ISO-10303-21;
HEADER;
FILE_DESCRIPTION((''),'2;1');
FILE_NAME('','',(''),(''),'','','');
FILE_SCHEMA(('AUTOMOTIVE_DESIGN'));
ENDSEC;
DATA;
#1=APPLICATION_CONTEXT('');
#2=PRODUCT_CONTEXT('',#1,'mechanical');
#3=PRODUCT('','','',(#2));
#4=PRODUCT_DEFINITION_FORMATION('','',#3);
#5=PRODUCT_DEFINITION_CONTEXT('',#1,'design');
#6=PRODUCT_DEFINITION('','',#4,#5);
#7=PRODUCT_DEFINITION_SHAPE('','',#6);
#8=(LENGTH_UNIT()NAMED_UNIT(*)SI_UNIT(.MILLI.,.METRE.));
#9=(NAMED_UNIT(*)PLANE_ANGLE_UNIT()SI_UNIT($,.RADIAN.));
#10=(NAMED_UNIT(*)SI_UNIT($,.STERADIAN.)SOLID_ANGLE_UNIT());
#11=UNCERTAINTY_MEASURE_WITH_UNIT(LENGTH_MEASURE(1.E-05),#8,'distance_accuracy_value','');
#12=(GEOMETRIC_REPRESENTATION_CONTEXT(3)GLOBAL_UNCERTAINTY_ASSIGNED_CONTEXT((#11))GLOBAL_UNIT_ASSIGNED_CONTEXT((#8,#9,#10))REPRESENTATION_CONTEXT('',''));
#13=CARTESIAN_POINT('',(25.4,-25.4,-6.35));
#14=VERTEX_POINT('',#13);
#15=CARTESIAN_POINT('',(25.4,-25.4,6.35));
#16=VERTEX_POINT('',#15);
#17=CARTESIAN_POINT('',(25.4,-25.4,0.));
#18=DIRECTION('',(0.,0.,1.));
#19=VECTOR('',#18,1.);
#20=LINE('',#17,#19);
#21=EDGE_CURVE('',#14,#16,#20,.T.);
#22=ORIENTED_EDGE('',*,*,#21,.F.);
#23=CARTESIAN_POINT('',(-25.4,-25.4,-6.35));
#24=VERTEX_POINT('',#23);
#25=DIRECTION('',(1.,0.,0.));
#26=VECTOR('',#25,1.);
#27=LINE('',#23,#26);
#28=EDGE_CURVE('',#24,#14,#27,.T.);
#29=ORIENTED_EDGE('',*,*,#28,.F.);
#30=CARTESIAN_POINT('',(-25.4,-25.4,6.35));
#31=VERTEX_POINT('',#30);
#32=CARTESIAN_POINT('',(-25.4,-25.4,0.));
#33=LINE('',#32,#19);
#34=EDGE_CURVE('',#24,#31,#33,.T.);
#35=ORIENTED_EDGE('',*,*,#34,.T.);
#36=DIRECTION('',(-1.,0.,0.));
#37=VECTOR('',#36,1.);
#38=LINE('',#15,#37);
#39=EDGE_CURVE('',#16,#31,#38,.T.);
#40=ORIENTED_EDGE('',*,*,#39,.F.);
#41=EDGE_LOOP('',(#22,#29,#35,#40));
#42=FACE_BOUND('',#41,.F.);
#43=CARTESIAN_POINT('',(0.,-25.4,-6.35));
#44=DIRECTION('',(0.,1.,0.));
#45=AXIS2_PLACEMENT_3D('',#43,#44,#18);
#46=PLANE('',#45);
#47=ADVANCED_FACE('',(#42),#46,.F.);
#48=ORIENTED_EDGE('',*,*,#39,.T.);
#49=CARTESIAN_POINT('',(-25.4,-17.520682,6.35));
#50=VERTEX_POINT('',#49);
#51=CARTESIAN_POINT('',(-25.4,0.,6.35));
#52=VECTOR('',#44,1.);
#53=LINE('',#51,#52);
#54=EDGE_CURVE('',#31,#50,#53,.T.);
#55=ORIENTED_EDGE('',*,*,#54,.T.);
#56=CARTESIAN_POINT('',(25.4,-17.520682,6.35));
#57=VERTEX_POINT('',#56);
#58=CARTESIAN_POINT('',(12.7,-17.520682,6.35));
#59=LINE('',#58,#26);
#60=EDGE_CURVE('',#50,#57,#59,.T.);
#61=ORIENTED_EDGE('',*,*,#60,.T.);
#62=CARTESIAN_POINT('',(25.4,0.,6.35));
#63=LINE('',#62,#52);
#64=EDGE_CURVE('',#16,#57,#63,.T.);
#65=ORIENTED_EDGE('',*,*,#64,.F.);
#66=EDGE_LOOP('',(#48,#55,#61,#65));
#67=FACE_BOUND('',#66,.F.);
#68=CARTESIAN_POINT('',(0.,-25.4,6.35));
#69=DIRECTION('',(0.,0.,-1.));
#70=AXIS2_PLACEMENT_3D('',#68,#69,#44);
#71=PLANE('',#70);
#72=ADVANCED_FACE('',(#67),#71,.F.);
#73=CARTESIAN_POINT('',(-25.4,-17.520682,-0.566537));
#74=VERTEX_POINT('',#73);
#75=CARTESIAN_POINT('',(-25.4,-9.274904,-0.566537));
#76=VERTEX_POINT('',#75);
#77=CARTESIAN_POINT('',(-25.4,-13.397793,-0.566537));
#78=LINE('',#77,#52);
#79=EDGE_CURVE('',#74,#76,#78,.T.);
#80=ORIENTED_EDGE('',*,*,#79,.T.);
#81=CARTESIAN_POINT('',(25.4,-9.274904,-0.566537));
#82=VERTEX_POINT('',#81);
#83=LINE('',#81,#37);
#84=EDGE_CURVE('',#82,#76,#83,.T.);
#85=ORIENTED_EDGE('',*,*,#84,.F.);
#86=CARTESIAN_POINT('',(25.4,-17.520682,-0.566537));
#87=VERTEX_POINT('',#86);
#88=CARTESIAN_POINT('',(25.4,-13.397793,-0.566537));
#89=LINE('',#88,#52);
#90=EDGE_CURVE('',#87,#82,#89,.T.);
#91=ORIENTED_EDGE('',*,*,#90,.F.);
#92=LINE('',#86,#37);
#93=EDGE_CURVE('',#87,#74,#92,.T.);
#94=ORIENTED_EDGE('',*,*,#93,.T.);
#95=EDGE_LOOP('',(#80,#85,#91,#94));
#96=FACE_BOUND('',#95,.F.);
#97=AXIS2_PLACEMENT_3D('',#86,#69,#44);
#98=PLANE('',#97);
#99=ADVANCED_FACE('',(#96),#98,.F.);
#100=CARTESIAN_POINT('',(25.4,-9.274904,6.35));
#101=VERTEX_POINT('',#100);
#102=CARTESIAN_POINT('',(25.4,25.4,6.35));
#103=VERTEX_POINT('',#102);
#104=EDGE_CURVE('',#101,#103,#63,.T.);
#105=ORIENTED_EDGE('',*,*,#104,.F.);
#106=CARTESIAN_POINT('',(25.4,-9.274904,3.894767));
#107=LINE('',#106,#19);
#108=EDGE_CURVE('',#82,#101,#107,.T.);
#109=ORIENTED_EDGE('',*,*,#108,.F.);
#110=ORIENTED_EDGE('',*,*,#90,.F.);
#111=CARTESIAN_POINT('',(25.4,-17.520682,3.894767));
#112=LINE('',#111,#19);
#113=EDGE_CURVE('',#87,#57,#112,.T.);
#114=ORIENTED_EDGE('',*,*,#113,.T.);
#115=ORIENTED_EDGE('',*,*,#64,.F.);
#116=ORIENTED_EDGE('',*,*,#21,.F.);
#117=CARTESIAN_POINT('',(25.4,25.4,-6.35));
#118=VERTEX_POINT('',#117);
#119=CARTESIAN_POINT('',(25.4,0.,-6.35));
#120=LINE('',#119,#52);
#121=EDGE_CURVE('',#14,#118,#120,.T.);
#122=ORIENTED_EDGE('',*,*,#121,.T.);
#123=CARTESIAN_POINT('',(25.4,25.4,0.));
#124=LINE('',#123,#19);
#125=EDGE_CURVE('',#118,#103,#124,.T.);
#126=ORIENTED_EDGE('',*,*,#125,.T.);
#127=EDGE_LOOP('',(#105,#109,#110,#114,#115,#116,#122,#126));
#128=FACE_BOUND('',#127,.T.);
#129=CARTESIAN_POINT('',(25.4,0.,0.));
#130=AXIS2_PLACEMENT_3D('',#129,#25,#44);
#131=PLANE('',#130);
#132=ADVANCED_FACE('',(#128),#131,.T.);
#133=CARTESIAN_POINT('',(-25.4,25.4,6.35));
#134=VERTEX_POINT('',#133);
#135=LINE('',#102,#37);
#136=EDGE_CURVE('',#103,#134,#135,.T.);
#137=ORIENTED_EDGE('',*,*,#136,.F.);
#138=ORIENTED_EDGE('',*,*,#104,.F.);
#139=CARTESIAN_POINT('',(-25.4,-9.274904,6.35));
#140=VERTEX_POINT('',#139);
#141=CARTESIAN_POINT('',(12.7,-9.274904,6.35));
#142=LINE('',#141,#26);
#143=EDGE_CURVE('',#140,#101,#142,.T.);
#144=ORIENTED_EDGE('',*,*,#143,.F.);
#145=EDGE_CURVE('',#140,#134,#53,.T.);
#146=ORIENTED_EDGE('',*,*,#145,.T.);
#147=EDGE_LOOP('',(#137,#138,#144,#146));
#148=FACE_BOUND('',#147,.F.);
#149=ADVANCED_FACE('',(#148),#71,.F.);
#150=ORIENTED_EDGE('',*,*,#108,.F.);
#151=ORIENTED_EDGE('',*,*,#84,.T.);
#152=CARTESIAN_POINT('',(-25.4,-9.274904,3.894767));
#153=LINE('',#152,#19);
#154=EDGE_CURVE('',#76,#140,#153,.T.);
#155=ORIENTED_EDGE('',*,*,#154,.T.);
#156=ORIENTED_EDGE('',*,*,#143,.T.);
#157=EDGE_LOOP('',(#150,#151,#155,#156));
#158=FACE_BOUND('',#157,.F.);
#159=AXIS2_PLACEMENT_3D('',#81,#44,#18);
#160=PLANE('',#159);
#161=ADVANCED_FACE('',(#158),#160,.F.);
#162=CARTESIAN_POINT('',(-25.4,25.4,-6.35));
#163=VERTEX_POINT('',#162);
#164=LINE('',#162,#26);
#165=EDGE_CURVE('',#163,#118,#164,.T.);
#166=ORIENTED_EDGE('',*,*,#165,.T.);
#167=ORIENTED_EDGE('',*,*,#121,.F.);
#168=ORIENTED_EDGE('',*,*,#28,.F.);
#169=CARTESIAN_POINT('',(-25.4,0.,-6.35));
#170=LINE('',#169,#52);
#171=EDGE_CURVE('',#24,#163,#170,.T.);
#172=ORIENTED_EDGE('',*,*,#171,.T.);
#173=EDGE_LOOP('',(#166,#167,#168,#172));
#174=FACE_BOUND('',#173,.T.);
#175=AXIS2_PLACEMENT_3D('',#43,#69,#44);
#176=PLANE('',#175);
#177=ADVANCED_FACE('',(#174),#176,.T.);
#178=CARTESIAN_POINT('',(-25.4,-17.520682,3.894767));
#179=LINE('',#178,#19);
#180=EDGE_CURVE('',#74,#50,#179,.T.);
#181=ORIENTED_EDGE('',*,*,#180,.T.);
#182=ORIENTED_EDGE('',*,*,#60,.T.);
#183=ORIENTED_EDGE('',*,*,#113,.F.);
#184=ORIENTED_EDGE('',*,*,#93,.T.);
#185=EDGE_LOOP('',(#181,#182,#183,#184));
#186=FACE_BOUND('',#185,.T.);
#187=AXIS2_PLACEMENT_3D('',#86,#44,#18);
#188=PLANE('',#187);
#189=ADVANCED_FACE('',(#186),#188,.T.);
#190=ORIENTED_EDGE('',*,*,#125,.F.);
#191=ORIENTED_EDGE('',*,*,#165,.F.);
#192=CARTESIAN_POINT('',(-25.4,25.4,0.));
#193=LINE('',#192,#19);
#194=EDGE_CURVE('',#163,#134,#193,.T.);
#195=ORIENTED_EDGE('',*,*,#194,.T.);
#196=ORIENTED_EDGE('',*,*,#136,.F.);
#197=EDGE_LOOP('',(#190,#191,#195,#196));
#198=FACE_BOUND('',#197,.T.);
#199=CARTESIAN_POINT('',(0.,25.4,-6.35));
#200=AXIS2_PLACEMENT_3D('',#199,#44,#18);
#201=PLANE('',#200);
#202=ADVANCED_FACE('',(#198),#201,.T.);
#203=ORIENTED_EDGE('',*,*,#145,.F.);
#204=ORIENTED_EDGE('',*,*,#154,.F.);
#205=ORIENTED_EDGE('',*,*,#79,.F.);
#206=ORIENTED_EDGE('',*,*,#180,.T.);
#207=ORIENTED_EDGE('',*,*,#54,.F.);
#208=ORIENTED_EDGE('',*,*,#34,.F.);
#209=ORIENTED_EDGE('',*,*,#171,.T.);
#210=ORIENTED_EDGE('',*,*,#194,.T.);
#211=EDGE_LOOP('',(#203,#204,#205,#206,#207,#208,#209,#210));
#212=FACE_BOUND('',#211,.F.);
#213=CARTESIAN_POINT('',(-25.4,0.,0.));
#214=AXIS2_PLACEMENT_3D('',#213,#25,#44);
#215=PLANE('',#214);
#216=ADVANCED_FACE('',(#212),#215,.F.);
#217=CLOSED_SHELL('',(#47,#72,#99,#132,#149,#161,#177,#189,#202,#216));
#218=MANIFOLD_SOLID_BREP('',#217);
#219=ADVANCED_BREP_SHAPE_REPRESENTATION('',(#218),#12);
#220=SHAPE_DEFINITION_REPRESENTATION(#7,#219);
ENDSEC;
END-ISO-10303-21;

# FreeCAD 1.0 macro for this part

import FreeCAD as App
import Part
import Sketcher
from FreeCAD import Vector
Q = App.Units.Quantity


def add_polygon(sketch, points):
    """Adds a closed chain of lines whose ends are joined by coincident constraints."""
    first, n = sketch.GeometryCount, len(points)
    for a, b in zip(points, points[1:] + points[:1]):
        sketch.addGeometry(Part.LineSegment(App.Vector(*a, 0), App.Vector(*b, 0)), False)
    for i in range(n):
        sketch.addConstraint(Sketcher.Constraint("Coincident", first + i, 2, first + (i + 1) % n, 1))

doc = App.newDocument("Part")
body = doc.addObject("PartDesign::Body", "Body")

# Sketch on YZ plane
sketch1 = body.newObject("Sketcher::SketchObject", "Sketch")
sketch1.AttachmentSupport = (doc.getObject("YZ_Plane"), [""])
sketch1.MapMode = "FlatFace"
add_polygon(sketch1, [(-25.4, 6.35), (-25.4, -6.35), (25.4, -6.35), (25.4, 6.35)])  # lines 0-3
sketch1.addConstraint([
    Sketcher.Constraint("Vertical", 0),
    Sketcher.Constraint("Horizontal", 1),
    Sketcher.Constraint("Vertical", 2),
    Sketcher.Constraint("Horizontal", 3),
    Sketcher.Constraint("Symmetric", 0, 2, 2, 2, -1, 1),
    Sketcher.Constraint("DistanceX", 1, 1, 1, 2, Q("2 in")),
    Sketcher.Constraint("DistanceY", 0, 2, 0, 1, Q("0.5 in")),
])
pad1 = body.newObject("PartDesign::Pad", "Pad")
pad1.Profile = sketch1
pad1.Type = "TwoLengths"
pad1.Length = Q("1 in")
pad1.Length2 = Q("1 in")

# Sketch on YZ plane
sketch2 = body.newObject("Sketcher::SketchObject", "Sketch001")
sketch2.AttachmentSupport = (doc.getObject("YZ_Plane"), [""])
sketch2.MapMode = "FlatFace"
sketch2.AttachmentOffset = App.Placement(Vector(0, 0, 1 * 25.4), App.Rotation())
add_polygon(sketch2, [(-17.520682, 8.356071), (-17.520682, -0.566537), (-9.274904, -0.566537), (-9.274904, 8.356071)])  # lines 0-3
sketch2.addConstraint([
    Sketcher.Constraint("Vertical", 0),
    Sketcher.Constraint("Horizontal", 1),
    Sketcher.Constraint("Vertical", 2),
    Sketcher.Constraint("Horizontal", 3),
    Sketcher.Constraint("DistanceX", 1, 1, 1, 2, 8.245779),
    Sketcher.Constraint("DistanceY", 0, 2, 0, 1, 8.922608),
    Sketcher.Constraint("DistanceY", -1, 1, 2, 2, 8.356071),
    Sketcher.Constraint("DistanceX", 0, 2, -1, 1, 17.520682),
])
pocket1 = body.newObject("PartDesign::Pocket", "Pocket")
pocket1.Profile = sketch2
pocket1.Length = Q("2 in")

doc.recompute()
